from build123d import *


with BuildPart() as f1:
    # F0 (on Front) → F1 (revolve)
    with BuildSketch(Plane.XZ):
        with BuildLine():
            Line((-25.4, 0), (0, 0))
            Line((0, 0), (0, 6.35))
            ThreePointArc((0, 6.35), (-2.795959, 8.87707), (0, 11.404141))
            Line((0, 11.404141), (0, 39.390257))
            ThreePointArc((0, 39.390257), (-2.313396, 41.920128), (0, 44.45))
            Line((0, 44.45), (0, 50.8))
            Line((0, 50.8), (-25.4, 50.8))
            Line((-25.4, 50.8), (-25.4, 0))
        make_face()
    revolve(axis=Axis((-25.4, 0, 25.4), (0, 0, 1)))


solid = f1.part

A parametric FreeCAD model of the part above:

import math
import FreeCAD as App
import Part
import Sketcher

V = App.Vector
Q = App.Units.Quantity

doc = App.newDocument("Part")
params = doc.addObject("Spreadsheet::Sheet", "Params")
for row, (alias, value) in enumerate([
    ("sketch1_radius", "0.1 in"),
    ("sketch1_width", "1 in"),
    ("sketch1_height", "2 in"),
    ("sketch1_height2", "0.25 in"),
    ("revolution_angle", "360 deg"),
], start=1):
    params.set(f"A{row}", alias)
    params.set(f"B{row}", "=" + value)
    params.setAlias(f"B{row}", alias)

body = doc.addObject("PartDesign::Body", "Body")

sketch1 = doc.addObject("Sketcher::SketchObject", "Sketch")
body.addObject(sketch1)
sketch1.AttachmentSupport = (doc.XZ_Plane, [""])
sketch1.MapMode = "FlatFace"
sketch1.addGeometry(Part.LineSegment(V(-25.4, 0, 0), V(0, 0, 0)), False)
sketch1.addGeometry(Part.LineSegment(V(0, 0, 0), V(0, 6.35, 0)), False)
sketch1.addGeometry(Part.ArcOfCircle(Part.Circle(V(-0.255959, 8.877071, 0), V(0, 0, 1), 2.54), math.radians(84.216417), math.radians(275.783583)), False)
sketch1.addGeometry(Part.LineSegment(V(0, 11.404141, 0), V(0, 39.390257, 0)), False)
sketch1.addGeometry(Part.ArcOfCircle(Part.Circle(V(0.226604, 41.920128, 0), V(0, 0, 1), 2.54), math.radians(95.118397), math.radians(264.881603)), False)
sketch1.addGeometry(Part.LineSegment(V(0, 44.45, 0), V(0, 50.8, 0)), False)
sketch1.addGeometry(Part.LineSegment(V(0, 50.8, 0), V(-25.4, 50.8, 0)), False)
sketch1.addGeometry(Part.LineSegment(V(-25.4, 50.8, 0), V(-25.4, 0, 0)), False)
sketch1.addGeometry(Part.LineSegment(V(-25.4, 0, 0), V(-25.4, 50.8, 0)), True)
sketch1.addConstraint(Sketcher.Constraint("Coincident", 0, 2, 1, 1))
sketch1.addConstraint(Sketcher.Constraint("Coincident", 1, 2, 2, 2))
sketch1.addConstraint(Sketcher.Constraint("Coincident", 2, 1, 3, 1))
sketch1.addConstraint(Sketcher.Constraint("Coincident", 3, 2, 4, 2))
sketch1.addConstraint(Sketcher.Constraint("Coincident", 4, 1, 5, 1))
sketch1.addConstraint(Sketcher.Constraint("Coincident", 5, 2, 6, 1))
sketch1.addConstraint(Sketcher.Constraint("Coincident", 6, 2, 7, 1))
sketch1.addConstraint(Sketcher.Constraint("Coincident", 7, 2, 0, 1))
sketch1.addConstraint(Sketcher.Constraint("Horizontal", 0))
sketch1.addConstraint(Sketcher.Constraint("Vertical", 1))
sketch1.addConstraint(Sketcher.Constraint("Vertical", 3))
sketch1.addConstraint(Sketcher.Constraint("Vertical", 5))
sketch1.addConstraint(Sketcher.Constraint("Horizontal", 6))
sketch1.addConstraint(Sketcher.Constraint("Vertical", 7))
sketch1.addConstraint(Sketcher.Constraint("Vertical", 8))
sketch1.addConstraint(Sketcher.Constraint("Coincident", 0, 2, -1, 1))
sketch1.addConstraint(Sketcher.Constraint("Coincident", 8, 1, 7, 2))
sketch1.addConstraint(Sketcher.Constraint("Equal", 2, 4))
sketch1.addConstraint(Sketcher.Constraint("PointOnObject", 2, 1, -2))
sketch1.addConstraint(Sketcher.Constraint("PointOnObject", 4, 1, -2))
sketch1.addConstraint(Sketcher.Constraint("Horizontal", 5, 2, 8, 2))
sketch1.addConstraint(Sketcher.Constraint("Equal", 1, 5))
sketch1.addConstraint(Sketcher.Constraint("Radius", 2, Q("0.1 in")))
sketch1.addConstraint(Sketcher.Constraint("DistanceX", 0, 1, 0, 2, Q("1 in")))
sketch1.addConstraint(Sketcher.Constraint("DistanceY", 7, 2, 7, 1, Q("2 in")))
sketch1.addConstraint(Sketcher.Constraint("DistanceY", 1, 1, 1, 2, Q("0.25 in")))
sketch1.addConstraint(Sketcher.Constraint("DistanceY", 3, 1, 3, 2, 27.986116))
sketch1.addConstraint(Sketcher.Constraint("DistanceX", 2, 3, -1, 1, 0.255959))
sketch1.setExpression("Constraints[22]", "Params.sketch1_radius")
sketch1.setExpression("Constraints[23]", "Params.sketch1_width")
sketch1.setExpression("Constraints[24]", "Params.sketch1_height")
sketch1.setExpression("Constraints[25]", "Params.sketch1_height2")
revolution = doc.addObject("PartDesign::Revolution", "Revolution")
body.addObject(revolution)
revolution.Profile = sketch1
revolution.ReferenceAxis = (sketch1, ["Axis0"])
revolution.setExpression("Angle", "Params.revolution_angle")

doc.recompute()
